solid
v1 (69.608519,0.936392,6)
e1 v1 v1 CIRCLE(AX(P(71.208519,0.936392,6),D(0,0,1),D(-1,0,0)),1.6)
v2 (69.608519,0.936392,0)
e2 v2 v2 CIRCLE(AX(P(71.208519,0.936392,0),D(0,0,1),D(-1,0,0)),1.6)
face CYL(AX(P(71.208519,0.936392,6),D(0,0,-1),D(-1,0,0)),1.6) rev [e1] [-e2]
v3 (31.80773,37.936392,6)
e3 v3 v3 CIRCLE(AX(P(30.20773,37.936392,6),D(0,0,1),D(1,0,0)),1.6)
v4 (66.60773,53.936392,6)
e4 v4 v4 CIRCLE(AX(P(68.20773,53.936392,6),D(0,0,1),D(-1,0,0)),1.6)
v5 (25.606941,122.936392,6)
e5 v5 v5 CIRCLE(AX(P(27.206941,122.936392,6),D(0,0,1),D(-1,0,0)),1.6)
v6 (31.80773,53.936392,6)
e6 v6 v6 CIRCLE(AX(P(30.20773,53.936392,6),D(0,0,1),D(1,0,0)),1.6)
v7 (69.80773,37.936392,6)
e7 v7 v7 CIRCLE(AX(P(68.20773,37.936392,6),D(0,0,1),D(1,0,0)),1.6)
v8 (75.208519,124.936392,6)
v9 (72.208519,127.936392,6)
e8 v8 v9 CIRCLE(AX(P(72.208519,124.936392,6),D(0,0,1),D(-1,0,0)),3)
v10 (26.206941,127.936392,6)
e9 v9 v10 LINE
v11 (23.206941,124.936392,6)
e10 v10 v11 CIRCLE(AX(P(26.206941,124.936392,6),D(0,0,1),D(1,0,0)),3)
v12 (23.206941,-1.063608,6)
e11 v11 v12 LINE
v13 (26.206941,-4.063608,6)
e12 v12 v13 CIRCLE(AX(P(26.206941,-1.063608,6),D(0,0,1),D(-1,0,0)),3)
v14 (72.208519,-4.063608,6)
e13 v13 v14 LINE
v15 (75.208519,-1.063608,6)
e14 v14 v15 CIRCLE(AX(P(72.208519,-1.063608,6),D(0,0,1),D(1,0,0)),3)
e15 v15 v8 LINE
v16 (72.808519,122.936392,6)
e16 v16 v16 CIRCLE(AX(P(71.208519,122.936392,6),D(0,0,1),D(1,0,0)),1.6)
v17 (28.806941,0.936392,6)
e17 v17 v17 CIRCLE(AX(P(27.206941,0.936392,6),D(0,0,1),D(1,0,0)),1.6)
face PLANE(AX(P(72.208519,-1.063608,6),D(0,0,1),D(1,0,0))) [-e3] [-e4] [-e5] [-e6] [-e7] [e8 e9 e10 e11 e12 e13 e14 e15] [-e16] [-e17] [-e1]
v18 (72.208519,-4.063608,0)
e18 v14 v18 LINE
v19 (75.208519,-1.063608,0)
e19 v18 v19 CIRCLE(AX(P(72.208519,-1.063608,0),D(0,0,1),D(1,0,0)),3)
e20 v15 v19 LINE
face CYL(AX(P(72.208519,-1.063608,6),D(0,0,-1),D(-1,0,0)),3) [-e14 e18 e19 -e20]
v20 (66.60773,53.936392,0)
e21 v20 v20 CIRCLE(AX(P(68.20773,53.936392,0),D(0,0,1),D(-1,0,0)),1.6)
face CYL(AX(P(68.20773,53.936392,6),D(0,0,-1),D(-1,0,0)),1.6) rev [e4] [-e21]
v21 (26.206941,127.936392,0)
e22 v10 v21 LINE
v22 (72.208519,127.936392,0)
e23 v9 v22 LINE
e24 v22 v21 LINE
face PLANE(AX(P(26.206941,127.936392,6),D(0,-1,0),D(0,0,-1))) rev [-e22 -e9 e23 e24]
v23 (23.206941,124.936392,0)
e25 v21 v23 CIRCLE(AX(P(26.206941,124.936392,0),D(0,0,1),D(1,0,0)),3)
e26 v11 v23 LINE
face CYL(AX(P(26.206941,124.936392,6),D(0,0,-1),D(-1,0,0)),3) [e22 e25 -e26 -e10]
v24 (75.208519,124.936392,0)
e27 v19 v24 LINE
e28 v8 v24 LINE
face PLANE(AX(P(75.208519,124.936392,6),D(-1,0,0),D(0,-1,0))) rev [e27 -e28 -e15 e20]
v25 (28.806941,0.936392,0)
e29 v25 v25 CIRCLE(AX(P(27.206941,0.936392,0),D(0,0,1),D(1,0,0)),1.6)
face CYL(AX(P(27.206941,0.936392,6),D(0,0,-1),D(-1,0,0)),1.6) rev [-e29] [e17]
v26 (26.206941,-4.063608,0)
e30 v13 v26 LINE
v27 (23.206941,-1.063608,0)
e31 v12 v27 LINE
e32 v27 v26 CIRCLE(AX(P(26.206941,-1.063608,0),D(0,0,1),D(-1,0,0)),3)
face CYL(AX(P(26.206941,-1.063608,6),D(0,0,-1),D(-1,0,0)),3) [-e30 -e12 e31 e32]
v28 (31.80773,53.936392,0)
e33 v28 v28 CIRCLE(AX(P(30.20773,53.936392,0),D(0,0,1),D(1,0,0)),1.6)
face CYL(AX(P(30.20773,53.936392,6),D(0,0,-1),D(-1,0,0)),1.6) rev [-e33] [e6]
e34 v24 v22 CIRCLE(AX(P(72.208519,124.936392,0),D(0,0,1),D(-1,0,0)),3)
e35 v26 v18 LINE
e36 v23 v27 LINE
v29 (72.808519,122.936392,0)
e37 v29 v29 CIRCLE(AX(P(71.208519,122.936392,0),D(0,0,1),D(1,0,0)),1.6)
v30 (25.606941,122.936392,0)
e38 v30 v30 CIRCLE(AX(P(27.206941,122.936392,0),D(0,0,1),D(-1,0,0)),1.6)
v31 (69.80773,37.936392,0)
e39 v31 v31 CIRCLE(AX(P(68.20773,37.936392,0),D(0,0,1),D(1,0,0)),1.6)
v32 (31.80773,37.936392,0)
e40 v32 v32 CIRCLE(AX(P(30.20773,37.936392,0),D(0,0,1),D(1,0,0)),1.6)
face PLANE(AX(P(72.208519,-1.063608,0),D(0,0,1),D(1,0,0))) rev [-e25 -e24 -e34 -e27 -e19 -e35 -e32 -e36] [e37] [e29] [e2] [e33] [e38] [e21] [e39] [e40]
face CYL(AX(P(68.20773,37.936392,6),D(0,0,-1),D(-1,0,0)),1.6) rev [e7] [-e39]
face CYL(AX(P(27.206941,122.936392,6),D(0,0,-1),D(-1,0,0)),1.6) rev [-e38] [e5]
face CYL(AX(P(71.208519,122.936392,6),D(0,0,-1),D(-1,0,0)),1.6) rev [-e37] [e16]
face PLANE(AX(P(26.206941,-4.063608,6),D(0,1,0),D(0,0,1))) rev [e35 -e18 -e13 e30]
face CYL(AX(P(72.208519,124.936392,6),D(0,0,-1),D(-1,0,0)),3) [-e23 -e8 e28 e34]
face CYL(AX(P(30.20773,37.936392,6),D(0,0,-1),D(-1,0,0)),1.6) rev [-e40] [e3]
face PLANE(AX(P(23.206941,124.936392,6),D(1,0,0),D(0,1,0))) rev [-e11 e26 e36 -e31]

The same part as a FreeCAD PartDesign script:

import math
import FreeCAD as App
import Part
import Sketcher
from FreeCAD import Vector
Q = App.Units.Quantity

doc = App.newDocument("Part")
body = doc.addObject("PartDesign::Body", "Body")

# Sketch on XY plane
sketch1 = body.newObject("Sketcher::SketchObject", "Sketch")
sketch1.AttachmentSupport = (doc.getObject("XY_Plane"), [""])
sketch1.MapMode = "FlatFace"
sketch1.addGeometry([
    Part.LineSegment(Vector(23.2, 124.9, 0), Vector(23.2, -1.1, 0)),  # 0
    Part.ArcOfCircle(Part.Circle(Vector(26.2, -1.1, 0), Vector(0, 0, 1), 3), math.radians(180), math.radians(270)),  # 1
    Part.LineSegment(Vector(26.2, -4.1, 0), Vector(72.2, -4.1, 0)),  # 2
    Part.ArcOfCircle(Part.Circle(Vector(72.2, -1.1, 0), Vector(0, 0, 1), 3), math.radians(-90), math.radians(0)),  # 3
    Part.LineSegment(Vector(75.2, -1.1, 0), Vector(75.2, 124.9, 0)),  # 4
    Part.ArcOfCircle(Part.Circle(Vector(72.2, 124.9, 0), Vector(0, 0, 1), 3), math.radians(0), math.radians(90)),  # 5
    Part.LineSegment(Vector(72.2, 127.9, 0), Vector(26.2, 127.9, 0)),  # 6
    Part.ArcOfCircle(Part.Circle(Vector(26.2, 124.9, 0), Vector(0, 0, 1), 3), math.radians(90), math.radians(180)),  # 7
    Part.Circle(Vector(27.2, 0.9, 0), Vector(0, 0, 1), 1.6),  # 8
    Part.Circle(Vector(30.2, 37.9, 0), Vector(0, 0, 1), 1.6),  # 9
    Part.Circle(Vector(30.2, 53.9, 0), Vector(0, 0, 1), 1.6),  # 10
    Part.Circle(Vector(71.2, 0.9, 0), Vector(0, 0, 1), 1.6),  # 11
    Part.Circle(Vector(68.2, 37.9, 0), Vector(0, 0, 1), 1.6),  # 12
    Part.Circle(Vector(68.2, 53.9, 0), Vector(0, 0, 1), 1.6),  # 13
    Part.Circle(Vector(27.2, 122.9, 0), Vector(0, 0, 1), 1.6),  # 14
    Part.Circle(Vector(71.2, 122.9, 0), Vector(0, 0, 1), 1.6),  # 15
], False)
sketch1.addConstraint([
    Sketcher.Constraint("Tangent", 0, 2, 1, 1),
    Sketcher.Constraint("Tangent", 1, 2, 2, 1),
    Sketcher.Constraint("Tangent", 2, 2, 3, 1),
    Sketcher.Constraint("Tangent", 3, 2, 4, 1),
    Sketcher.Constraint("Tangent", 4, 2, 5, 1),
    Sketcher.Constraint("Tangent", 5, 2, 6, 1),
    Sketcher.Constraint("Tangent", 6, 2, 7, 1),
    Sketcher.Constraint("Tangent", 7, 2, 0, 1),
    Sketcher.Constraint("Vertical", 0),
    Sketcher.Constraint("Horizontal", 2),
    Sketcher.Constraint("Vertical", 4),
    Sketcher.Constraint("Horizontal", 6),
    Sketcher.Constraint("Equal", 1, 3),
    Sketcher.Constraint("Equal", 3, 5),
    Sketcher.Constraint("Equal", 5, 7),
    Sketcher.Constraint("Equal", 8, 9),
    Sketcher.Constraint("Equal", 9, 10),
    Sketcher.Constraint("Equal", 10, 11),
    Sketcher.Constraint("Equal", 11, 12),
    Sketcher.Constraint("Equal", 12, 13),
    Sketcher.Constraint("Equal", 13, 14),
    Sketcher.Constraint("Equal", 14, 15),
    Sketcher.Constraint("Horizontal", 8, 3, 11, 3),
    Sketcher.Constraint("Horizontal", 9, 3, 12, 3),
    Sketcher.Constraint("Horizontal", 10, 3, 13, 3),
    Sketcher.Constraint("Horizontal", 14, 3, 15, 3),
    Sketcher.Constraint("Vertical", 9, 3, 10, 3),
    Sketcher.Constraint("Vertical", 12, 3, 13, 3),
    Sketcher.Constraint("Vertical", 8, 3, 14, 3),
    Sketcher.Constraint("Vertical", 11, 3, 15, 3),
    Sketcher.Constraint("Radius", 1, Q("3 mm")),
    Sketcher.Constraint("Diameter", 8, Q("3.2 mm")),
    Sketcher.Constraint("DistanceY", 0, 2, 0, 1, Q("126 mm")),
    Sketcher.Constraint("DistanceX", 1, 3, 8, 3, Q("1 mm")),
    Sketcher.Constraint("DistanceY", 1, 3, 8, 3, Q("2 mm")),
    Sketcher.Constraint("DistanceY", 8, 3, 9, 3, Q("37 mm")),
    Sketcher.Constraint("DistanceY", 9, 3, 10, 3, Q("16 mm")),
    Sketcher.Constraint("DistanceX", 11, 3, 3, 3, Q("1 mm")),
    Sketcher.Constraint("DistanceX", 9, 3, 12, 3, Q("38 mm")),
    Sketcher.Constraint("DistanceY", 14, 3, 7, 3, Q("2 mm")),
    Sketcher.Constraint("DistanceX", 2, 1, 2, 2, Q("46.001578 mm")),
    Sketcher.Constraint("DistanceX", -1, 1, 1, 3, Q("26.206941 mm")),
    Sketcher.Constraint("DistanceY", 1, 3, -1, 1, Q("1.063608 mm")),
    Sketcher.Constraint("DistanceX", -1, 1, 9, 3, Q("30.20773 mm")),
])
pad1 = body.newObject("PartDesign::Pad", "Pad")
pad1.Profile = sketch1
pad1.Length = 6

doc.recompute()
